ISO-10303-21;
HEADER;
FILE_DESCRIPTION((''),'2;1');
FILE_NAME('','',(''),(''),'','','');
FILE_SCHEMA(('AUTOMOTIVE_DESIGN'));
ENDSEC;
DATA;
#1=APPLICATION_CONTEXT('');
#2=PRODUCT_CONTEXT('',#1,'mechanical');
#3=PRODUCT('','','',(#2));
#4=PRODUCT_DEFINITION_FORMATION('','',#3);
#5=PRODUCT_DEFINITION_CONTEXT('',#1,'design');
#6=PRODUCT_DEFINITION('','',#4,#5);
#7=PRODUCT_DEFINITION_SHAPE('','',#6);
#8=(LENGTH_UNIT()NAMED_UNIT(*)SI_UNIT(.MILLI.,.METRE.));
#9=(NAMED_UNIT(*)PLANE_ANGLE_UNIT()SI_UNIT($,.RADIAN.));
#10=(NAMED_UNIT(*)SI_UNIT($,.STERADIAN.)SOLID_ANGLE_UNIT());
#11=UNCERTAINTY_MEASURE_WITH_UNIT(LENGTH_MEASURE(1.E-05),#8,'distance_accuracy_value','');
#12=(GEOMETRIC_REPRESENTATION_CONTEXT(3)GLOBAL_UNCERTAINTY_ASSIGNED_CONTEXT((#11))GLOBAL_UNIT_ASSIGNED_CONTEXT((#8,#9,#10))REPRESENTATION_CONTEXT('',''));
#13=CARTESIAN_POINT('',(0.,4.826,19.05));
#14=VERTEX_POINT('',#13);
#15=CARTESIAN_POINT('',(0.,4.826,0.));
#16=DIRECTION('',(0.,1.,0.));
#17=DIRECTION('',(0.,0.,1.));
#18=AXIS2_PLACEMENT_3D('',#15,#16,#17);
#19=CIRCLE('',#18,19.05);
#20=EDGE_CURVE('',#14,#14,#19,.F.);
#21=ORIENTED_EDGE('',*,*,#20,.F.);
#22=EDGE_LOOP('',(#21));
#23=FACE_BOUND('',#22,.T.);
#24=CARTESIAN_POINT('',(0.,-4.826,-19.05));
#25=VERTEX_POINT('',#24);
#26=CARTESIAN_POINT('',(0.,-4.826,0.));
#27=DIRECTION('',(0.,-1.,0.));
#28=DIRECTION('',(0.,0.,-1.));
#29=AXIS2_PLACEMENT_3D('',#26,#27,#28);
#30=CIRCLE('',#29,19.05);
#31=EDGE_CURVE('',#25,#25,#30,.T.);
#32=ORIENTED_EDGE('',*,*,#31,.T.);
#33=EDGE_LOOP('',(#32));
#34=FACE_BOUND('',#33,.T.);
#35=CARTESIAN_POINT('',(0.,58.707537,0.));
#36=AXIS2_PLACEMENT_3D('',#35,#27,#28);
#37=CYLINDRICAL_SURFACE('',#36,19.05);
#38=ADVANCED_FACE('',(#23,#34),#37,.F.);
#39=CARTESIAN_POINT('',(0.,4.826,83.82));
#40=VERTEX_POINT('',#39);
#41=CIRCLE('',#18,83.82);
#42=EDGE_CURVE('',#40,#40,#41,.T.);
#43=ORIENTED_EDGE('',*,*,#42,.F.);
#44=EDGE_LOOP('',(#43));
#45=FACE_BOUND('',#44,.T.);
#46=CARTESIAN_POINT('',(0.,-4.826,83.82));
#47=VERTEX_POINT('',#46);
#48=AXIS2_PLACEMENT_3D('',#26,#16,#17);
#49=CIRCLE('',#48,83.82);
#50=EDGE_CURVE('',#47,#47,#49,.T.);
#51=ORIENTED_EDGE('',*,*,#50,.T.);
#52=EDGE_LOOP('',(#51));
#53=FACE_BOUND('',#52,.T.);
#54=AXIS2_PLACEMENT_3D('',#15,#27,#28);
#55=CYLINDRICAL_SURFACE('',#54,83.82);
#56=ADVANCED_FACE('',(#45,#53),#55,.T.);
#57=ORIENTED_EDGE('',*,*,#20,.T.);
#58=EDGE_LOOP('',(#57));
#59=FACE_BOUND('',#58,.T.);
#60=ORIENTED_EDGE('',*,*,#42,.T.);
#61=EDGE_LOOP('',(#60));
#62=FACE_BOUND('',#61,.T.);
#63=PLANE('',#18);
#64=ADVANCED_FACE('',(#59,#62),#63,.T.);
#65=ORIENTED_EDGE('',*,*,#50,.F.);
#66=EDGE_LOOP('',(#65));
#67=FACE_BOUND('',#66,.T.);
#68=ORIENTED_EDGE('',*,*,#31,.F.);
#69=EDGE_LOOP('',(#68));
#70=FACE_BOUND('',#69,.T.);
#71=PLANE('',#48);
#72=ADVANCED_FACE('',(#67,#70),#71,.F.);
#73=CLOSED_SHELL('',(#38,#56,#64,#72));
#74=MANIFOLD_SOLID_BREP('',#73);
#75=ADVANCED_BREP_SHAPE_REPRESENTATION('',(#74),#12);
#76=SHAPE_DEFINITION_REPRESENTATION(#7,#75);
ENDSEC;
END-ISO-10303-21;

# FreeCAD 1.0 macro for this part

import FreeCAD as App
import Part
import Sketcher
from FreeCAD import Vector
Q = App.Units.Quantity

doc = App.newDocument("Part")
body = doc.addObject("PartDesign::Body", "Body")

# Sketch on XZ plane
sketch1 = body.newObject("Sketcher::SketchObject", "Sketch")
sketch1.AttachmentSupport = (doc.getObject("XZ_Plane"), [""])
sketch1.MapMode = "FlatFace"
sketch1.addGeometry(Part.Circle(Vector(0, 0, 0), Vector(0, 0, 1), 83.82), False)
sketch1.addConstraint(Sketcher.Constraint("Coincident", 0, 3, -1, 1))
sketch1.addConstraint(Sketcher.Constraint("Diameter", 0, Q("6.6 in")))
pad1 = body.newObject("PartDesign::Pad", "Pad")
pad1.Profile = sketch1
pad1.Length = Q("0.38 in")
pad1.Midplane = True

# Sketch on XZ plane
sketch2 = body.newObject("Sketcher::SketchObject", "Sketch001")
sketch2.AttachmentSupport = (doc.getObject("XZ_Plane"), [""])
sketch2.MapMode = "FlatFace"
sketch2.AttachmentOffset = App.Placement(Vector(0, 0, 0.19 * 25.4), App.Rotation())
sketch2.addGeometry(Part.Circle(Vector(0, 0, 0), Vector(0, 0, 1), 19.05), False)
sketch2.addConstraint(Sketcher.Constraint("Coincident", 0, 3, -1, 1))
sketch2.addConstraint(Sketcher.Constraint("Diameter", 0, Q("1.5 in")))
pocket1 = body.newObject("PartDesign::Pocket", "Pocket")
pocket1.Profile = sketch2
pocket1.Length = Q("0.38 in")

doc.recompute()
